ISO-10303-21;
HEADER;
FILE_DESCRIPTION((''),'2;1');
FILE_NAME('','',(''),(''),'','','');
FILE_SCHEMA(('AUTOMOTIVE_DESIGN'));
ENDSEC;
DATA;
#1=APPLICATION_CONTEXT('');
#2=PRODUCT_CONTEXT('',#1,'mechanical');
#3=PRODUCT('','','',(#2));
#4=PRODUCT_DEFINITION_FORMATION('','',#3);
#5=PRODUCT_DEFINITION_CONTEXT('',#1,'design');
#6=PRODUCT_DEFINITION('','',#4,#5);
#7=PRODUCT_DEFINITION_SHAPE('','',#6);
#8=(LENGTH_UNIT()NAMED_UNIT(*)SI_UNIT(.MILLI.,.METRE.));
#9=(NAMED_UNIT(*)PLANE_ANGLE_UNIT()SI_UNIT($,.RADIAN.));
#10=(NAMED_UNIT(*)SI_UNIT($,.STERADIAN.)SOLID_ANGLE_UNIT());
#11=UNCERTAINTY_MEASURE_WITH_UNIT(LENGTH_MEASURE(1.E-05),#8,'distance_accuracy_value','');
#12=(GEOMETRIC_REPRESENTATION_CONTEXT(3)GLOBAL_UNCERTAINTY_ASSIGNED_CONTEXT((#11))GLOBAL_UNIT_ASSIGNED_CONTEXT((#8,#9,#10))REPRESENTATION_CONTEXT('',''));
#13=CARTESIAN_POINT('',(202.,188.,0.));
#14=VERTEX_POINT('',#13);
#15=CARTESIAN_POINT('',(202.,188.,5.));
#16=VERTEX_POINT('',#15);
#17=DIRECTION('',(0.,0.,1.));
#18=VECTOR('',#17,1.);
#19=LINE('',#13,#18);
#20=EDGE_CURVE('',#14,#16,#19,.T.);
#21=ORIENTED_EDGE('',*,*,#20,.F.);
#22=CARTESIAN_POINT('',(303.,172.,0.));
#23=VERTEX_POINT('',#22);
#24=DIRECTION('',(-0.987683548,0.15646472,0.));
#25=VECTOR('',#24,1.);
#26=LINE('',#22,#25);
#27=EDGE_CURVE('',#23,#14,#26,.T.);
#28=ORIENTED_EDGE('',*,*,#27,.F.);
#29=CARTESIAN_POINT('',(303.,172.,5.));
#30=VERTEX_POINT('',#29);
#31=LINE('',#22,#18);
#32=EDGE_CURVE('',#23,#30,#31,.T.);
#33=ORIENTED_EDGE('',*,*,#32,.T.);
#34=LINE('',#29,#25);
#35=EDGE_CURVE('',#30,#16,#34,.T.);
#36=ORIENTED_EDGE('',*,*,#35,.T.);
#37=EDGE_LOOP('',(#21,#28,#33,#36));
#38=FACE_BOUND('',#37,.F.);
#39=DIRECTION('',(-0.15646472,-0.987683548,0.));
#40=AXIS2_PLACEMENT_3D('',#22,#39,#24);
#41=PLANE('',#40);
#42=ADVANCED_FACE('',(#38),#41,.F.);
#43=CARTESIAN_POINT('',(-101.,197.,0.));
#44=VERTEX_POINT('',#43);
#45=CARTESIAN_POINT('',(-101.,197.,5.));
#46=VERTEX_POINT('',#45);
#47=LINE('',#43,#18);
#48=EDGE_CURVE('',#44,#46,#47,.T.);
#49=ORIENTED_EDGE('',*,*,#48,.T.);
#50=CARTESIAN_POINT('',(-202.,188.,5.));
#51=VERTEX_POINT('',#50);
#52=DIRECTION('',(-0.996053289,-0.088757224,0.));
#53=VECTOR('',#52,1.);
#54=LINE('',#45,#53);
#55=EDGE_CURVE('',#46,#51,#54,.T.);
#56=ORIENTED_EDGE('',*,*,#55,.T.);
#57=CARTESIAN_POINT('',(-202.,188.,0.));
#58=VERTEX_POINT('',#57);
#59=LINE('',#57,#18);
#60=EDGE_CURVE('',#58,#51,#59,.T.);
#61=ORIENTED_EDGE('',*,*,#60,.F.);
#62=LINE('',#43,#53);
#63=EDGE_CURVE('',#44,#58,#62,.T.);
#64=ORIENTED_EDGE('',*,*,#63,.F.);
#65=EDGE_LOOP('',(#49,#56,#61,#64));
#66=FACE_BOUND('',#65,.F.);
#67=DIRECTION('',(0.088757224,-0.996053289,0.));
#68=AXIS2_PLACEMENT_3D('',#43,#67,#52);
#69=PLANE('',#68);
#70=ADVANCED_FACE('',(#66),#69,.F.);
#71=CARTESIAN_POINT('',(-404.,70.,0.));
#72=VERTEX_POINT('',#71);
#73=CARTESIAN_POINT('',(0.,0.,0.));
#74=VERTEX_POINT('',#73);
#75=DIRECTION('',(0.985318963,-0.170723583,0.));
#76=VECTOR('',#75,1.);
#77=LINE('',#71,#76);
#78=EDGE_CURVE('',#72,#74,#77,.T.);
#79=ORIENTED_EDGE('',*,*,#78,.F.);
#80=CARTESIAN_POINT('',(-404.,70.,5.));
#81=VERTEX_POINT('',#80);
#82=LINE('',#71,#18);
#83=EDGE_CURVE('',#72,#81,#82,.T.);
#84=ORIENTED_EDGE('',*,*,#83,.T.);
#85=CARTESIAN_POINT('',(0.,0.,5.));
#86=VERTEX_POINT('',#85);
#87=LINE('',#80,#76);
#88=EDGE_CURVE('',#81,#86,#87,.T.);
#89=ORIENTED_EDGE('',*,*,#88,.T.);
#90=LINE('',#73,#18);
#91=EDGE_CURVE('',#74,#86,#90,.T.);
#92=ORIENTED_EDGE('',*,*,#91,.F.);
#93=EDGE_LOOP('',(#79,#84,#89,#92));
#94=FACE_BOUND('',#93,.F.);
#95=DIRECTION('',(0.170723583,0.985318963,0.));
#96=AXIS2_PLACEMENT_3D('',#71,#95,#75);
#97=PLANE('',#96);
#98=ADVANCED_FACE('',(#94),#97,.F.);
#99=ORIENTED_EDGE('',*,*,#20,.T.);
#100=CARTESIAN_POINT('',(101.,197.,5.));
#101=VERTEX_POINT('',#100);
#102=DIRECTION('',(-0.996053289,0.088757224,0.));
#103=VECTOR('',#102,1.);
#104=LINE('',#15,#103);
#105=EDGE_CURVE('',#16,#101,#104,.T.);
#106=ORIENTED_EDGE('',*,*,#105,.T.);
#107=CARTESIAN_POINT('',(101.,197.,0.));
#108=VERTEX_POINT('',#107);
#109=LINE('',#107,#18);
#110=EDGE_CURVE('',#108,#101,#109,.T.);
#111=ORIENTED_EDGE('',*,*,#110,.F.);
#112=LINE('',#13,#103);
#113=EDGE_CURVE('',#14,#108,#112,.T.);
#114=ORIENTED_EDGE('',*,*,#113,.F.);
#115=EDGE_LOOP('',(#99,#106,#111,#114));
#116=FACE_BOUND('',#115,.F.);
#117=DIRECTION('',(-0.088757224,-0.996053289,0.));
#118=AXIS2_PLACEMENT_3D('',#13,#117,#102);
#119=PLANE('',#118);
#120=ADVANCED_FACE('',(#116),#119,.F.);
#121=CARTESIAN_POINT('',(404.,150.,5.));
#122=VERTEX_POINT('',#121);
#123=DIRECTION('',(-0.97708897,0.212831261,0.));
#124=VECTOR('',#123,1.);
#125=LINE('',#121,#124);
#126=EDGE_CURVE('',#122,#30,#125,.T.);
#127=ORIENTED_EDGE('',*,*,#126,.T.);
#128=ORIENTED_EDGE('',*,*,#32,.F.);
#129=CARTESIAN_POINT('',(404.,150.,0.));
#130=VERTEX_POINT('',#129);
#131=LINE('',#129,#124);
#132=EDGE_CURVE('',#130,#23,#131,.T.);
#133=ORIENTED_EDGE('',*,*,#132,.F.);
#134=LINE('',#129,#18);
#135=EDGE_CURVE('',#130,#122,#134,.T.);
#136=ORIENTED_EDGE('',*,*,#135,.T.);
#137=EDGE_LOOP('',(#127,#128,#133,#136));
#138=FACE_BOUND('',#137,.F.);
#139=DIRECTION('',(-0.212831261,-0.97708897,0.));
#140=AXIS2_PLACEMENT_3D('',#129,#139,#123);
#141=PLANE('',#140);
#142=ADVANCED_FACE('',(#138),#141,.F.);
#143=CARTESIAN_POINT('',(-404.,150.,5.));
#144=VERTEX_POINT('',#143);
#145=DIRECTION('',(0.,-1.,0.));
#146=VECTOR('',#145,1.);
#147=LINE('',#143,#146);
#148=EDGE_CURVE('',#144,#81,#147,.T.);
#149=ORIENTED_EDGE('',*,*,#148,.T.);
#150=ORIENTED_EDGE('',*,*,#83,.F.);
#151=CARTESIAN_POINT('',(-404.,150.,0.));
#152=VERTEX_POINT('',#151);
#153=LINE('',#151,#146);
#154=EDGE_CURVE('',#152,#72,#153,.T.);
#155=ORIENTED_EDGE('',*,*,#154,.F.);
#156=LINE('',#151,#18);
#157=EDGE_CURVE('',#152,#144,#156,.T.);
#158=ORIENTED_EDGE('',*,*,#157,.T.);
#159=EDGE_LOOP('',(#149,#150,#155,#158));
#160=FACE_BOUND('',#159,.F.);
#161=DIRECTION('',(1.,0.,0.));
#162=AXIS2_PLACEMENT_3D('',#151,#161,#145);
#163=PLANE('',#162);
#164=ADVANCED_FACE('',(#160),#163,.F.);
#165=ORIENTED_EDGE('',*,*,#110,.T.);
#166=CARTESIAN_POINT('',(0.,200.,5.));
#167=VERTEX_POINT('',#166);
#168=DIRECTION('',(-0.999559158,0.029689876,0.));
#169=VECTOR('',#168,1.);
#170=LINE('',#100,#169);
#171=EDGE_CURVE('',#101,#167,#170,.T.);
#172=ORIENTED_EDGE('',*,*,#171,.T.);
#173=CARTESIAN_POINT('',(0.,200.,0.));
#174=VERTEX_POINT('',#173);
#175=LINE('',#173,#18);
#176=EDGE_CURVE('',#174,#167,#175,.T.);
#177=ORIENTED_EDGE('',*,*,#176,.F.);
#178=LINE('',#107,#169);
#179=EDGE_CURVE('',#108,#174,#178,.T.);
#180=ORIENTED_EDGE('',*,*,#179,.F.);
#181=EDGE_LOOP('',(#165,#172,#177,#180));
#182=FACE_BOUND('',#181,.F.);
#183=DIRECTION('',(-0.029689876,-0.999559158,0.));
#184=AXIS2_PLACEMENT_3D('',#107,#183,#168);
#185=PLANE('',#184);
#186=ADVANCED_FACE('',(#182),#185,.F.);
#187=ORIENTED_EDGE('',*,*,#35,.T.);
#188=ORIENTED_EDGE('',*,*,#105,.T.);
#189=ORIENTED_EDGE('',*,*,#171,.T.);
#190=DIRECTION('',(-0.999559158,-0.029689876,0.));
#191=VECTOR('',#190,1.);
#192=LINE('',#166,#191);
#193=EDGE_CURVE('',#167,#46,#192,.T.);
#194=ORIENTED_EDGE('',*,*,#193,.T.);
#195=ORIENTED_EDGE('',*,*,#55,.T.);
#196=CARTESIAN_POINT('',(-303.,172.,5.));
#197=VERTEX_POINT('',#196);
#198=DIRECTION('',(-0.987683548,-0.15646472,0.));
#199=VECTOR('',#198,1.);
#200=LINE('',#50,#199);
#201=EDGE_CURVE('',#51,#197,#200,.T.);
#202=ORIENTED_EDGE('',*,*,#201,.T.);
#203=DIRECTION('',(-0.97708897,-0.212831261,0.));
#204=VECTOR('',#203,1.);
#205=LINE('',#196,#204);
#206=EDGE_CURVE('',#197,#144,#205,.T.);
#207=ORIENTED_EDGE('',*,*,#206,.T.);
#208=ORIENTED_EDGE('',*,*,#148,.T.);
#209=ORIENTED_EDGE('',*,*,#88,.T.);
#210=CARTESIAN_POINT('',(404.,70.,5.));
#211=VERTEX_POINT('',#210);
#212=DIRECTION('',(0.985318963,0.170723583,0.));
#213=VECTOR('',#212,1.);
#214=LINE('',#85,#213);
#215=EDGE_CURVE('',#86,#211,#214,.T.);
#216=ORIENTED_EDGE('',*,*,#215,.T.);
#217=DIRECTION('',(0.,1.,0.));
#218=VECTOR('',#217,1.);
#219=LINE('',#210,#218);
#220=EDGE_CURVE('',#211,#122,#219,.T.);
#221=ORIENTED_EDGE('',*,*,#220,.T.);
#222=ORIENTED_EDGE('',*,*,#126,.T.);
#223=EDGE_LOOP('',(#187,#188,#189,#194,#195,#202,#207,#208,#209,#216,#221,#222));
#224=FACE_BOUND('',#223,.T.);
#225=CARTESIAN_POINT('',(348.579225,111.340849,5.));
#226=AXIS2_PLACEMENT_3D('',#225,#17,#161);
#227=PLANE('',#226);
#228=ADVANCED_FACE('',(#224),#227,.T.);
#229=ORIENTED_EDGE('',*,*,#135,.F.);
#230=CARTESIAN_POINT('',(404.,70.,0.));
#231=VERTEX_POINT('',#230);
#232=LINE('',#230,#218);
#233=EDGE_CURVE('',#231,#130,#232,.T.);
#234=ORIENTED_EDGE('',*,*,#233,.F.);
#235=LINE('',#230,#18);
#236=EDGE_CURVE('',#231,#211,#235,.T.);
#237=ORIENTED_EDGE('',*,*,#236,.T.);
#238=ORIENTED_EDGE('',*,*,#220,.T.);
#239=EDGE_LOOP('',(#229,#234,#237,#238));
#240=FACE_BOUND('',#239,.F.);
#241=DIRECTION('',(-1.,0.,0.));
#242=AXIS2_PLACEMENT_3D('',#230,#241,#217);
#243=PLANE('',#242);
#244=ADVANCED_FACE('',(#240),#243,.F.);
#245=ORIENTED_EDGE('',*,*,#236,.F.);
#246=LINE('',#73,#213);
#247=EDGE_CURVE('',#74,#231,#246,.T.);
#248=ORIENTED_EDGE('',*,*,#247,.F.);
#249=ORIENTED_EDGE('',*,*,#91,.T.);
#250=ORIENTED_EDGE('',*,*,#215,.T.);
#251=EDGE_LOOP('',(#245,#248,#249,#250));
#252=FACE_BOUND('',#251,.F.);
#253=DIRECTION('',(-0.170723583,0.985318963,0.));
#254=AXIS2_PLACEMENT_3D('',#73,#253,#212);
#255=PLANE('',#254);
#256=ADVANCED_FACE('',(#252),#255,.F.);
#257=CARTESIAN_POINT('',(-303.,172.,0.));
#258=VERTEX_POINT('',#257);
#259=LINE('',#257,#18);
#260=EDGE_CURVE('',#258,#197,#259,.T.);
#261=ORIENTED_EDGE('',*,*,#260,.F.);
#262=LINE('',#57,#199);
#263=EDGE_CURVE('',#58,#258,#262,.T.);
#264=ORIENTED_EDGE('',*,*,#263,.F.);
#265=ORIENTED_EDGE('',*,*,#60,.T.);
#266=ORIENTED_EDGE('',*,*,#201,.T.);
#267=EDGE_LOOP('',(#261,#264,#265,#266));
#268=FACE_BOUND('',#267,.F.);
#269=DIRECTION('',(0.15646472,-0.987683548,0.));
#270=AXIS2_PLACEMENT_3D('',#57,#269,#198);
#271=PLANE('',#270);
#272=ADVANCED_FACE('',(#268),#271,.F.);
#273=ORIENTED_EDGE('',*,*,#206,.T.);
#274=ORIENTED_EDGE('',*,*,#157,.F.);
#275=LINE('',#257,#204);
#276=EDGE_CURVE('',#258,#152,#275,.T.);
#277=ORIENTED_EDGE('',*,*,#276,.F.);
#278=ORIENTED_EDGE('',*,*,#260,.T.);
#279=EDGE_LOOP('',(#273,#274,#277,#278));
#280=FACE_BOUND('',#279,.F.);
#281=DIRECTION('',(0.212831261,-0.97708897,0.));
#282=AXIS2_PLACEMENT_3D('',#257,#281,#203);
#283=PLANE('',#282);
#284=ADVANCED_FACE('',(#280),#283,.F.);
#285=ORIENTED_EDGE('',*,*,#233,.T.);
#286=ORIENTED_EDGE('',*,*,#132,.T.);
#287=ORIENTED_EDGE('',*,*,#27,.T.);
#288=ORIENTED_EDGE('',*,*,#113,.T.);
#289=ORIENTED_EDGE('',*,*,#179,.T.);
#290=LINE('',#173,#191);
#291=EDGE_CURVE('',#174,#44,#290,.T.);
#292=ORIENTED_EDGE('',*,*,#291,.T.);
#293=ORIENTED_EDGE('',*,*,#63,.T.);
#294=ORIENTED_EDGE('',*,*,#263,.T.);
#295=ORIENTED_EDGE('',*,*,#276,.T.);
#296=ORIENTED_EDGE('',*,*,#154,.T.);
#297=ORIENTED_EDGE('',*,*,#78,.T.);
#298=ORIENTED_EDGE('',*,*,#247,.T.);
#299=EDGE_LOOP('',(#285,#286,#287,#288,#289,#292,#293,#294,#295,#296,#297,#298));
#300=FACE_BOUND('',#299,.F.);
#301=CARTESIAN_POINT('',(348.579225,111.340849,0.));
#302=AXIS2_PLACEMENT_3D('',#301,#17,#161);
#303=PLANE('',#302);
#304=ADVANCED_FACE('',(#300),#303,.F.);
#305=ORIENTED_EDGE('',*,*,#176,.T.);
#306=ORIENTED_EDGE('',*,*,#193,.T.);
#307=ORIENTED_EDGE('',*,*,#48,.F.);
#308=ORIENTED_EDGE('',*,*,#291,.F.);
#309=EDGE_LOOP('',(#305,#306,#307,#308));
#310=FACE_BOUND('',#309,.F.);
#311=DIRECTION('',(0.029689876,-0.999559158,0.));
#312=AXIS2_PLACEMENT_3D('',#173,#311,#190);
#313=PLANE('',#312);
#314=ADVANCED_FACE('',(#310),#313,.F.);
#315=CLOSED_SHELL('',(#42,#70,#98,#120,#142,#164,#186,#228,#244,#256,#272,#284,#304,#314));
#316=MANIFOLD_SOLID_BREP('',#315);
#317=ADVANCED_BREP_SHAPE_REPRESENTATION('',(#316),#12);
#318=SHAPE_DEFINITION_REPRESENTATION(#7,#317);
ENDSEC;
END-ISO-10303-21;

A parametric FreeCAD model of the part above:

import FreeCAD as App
import Part
import Sketcher
Q = App.Units.Quantity


def add_polygon(sketch, points):
    """Adds a closed chain of lines whose ends are joined by coincident constraints."""
    first, n = sketch.GeometryCount, len(points)
    for a, b in zip(points, points[1:] + points[:1]):
        sketch.addGeometry(Part.LineSegment(App.Vector(*a, 0), App.Vector(*b, 0)), False)
    for i in range(n):
        sketch.addConstraint(Sketcher.Constraint("Coincident", first + i, 2, first + (i + 1) % n, 1))

doc = App.newDocument("Part")
body = doc.addObject("PartDesign::Body", "Body")

# Sketch on XY plane
sketch1 = body.newObject("Sketcher::SketchObject", "Sketch")
sketch1.AttachmentSupport = (doc.getObject("XY_Plane"), [""])
sketch1.MapMode = "FlatFace"
add_polygon(sketch1, [(404, 70), (404, 150), (303, 172), (202, 188), (101, 197), (0, 200), (-101, 197), (-202, 188), (-303, 172), (-404, 150), (-404, 70), (0, 0)])  # lines 0-11
sketch1.addConstraint([
    Sketcher.Constraint("Vertical", 0),
    Sketcher.Constraint("Vertical", 9),
    Sketcher.Constraint("Coincident", 10, 2, -1, 1),
    Sketcher.Constraint("Symmetric", 3, 2, 5, 2, -2),
    Sketcher.Constraint("Symmetric", 2, 2, 6, 2, -2),
    Sketcher.Constraint("Symmetric", 1, 2, 7, 2, -2),
    Sketcher.Constraint("Symmetric", 0, 2, 8, 2, -2),
    Sketcher.Constraint("PointOnObject", 4, 2, -2),
    Sketcher.Constraint("Horizontal", 9, 2, 11, 2),
    Sketcher.Constraint("DistanceY", 0, 1, 0, 2, Q("80 mm")),
    Sketcher.Constraint("DistanceX", -1, 1, 0, 2, Q("404 mm")),
    Sketcher.Constraint("DistanceY", -1, 1, 0, 2, Q("150 mm")),
    Sketcher.Constraint("DistanceX", -1, 1, 1, 2, Q("303 mm")),
    Sketcher.Constraint("DistanceY", -1, 1, 1, 2, Q("172 mm")),
    Sketcher.Constraint("DistanceX", -1, 1, 2, 2, Q("202 mm")),
    Sketcher.Constraint("DistanceY", -1, 1, 2, 2, Q("188 mm")),
    Sketcher.Constraint("DistanceX", -1, 1, 3, 2, Q("101 mm")),
    Sketcher.Constraint("DistanceY", -1, 1, 3, 2, Q("197 mm")),
    Sketcher.Constraint("DistanceY", -1, 1, 4, 2, Q("200 mm")),
])
pad1 = body.newObject("PartDesign::Pad", "Pad")
pad1.Profile = sketch1
pad1.Length = 5

doc.recompute()
